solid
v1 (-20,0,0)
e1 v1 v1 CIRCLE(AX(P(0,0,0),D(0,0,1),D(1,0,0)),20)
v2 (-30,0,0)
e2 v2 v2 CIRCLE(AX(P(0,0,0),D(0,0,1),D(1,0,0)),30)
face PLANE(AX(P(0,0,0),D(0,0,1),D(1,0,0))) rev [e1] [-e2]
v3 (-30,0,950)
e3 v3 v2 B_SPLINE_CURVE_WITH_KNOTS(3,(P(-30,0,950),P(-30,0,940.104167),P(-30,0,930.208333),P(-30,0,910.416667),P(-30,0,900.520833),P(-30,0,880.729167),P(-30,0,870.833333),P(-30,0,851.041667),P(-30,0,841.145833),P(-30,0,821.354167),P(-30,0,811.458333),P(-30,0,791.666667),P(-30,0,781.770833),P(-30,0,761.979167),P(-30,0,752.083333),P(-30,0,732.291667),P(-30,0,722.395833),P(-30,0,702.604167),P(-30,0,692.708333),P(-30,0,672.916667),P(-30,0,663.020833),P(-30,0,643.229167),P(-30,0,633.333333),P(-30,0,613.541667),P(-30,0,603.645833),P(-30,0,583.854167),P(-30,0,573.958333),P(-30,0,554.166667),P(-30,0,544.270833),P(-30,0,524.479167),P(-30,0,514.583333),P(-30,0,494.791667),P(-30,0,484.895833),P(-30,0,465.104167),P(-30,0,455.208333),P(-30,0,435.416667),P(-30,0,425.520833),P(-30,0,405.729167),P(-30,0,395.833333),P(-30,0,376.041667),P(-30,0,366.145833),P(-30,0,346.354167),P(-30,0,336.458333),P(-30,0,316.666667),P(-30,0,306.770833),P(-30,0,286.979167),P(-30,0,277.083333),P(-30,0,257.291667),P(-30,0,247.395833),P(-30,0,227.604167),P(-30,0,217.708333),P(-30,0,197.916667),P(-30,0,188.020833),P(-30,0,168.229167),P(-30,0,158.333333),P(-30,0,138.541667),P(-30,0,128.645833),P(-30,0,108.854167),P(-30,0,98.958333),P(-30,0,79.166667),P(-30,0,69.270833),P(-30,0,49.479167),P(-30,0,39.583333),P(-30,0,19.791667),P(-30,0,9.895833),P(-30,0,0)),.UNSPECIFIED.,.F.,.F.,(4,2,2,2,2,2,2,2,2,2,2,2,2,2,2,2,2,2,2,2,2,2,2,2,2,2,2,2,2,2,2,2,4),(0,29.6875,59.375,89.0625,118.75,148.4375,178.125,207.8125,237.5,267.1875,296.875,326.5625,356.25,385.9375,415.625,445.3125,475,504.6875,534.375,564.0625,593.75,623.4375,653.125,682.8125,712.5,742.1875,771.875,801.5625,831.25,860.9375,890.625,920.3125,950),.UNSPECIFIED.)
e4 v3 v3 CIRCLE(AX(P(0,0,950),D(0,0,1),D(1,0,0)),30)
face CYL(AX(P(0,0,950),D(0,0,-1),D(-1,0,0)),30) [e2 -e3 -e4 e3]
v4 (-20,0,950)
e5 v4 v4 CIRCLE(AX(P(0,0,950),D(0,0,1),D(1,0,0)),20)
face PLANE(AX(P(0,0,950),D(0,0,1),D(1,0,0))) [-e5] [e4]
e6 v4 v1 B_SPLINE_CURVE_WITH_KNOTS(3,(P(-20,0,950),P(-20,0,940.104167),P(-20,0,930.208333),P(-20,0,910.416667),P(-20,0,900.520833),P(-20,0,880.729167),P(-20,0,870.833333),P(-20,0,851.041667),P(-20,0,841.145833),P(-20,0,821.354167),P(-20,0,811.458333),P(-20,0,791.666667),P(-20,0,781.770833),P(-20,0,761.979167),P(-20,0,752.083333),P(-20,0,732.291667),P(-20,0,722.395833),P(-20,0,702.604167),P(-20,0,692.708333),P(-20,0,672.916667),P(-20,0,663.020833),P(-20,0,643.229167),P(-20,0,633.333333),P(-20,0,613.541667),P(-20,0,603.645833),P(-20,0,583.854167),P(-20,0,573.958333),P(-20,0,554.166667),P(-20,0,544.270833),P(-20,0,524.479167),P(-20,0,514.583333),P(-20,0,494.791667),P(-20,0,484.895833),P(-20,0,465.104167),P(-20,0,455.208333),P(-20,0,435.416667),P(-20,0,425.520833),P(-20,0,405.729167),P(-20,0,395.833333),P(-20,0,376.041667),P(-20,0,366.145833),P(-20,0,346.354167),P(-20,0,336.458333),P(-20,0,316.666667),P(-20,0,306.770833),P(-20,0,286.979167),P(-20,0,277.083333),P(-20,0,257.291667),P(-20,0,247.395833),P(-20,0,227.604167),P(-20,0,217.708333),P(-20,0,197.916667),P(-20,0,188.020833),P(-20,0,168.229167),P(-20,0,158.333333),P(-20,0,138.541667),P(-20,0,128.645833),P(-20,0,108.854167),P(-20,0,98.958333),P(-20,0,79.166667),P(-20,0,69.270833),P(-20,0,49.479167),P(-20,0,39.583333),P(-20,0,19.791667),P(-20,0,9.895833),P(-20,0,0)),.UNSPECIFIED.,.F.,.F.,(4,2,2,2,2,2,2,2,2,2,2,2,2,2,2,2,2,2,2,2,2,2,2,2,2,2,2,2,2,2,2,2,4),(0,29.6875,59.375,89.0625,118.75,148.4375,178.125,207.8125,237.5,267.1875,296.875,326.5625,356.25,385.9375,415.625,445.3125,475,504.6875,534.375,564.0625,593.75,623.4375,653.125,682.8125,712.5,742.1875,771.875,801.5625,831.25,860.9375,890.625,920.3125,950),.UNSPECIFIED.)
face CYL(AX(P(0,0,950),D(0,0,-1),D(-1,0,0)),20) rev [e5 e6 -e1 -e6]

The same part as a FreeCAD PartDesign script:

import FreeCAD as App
import Part
import Sketcher
Q = App.Units.Quantity

doc = App.newDocument("Part")
params = doc.addObject("Spreadsheet::Sheet", "Params")
for row, (alias, value) in enumerate([
    ("sketch1_diameter", "60 mm"),
    ("sketch1_diameter2", "40 mm"),
    ("pad1_length", "950 mm"),
], start=1):
    params.set(f"A{row}", alias)
    params.set(f"B{row}", "=" + value)
    params.setAlias(f"B{row}", alias)

body = doc.addObject("PartDesign::Body", "Body")

# Sketch on XY plane
sketch1 = body.newObject("Sketcher::SketchObject", "Sketch")
sketch1.AttachmentSupport = (doc.getObject("XY_Plane"), [""])
sketch1.MapMode = "FlatFace"
sketch1.addGeometry([
    Part.Circle(App.Vector(0, 0, 0), App.Vector(0, 0, 1), 30),
    Part.Circle(App.Vector(0, 0, 0), App.Vector(0, 0, 1), 20),
], False)
sketch1.addConstraint([
    Sketcher.Constraint("Coincident", 0, 3, -1, 1),
    Sketcher.Constraint("Coincident", 1, 3, -1, 1),
    Sketcher.Constraint("Diameter", 0, Q("60 mm")),
    Sketcher.Constraint("Diameter", 1, Q("40 mm")),
])
sketch1.setExpression("Constraints[2]", "Params.sketch1_diameter")
sketch1.setExpression("Constraints[3]", "Params.sketch1_diameter2")
pad1 = body.newObject("PartDesign::Pad", "Pad")
pad1.Profile = sketch1
pad1.setExpression("Length", "Params.pad1_length")

doc.recompute()
